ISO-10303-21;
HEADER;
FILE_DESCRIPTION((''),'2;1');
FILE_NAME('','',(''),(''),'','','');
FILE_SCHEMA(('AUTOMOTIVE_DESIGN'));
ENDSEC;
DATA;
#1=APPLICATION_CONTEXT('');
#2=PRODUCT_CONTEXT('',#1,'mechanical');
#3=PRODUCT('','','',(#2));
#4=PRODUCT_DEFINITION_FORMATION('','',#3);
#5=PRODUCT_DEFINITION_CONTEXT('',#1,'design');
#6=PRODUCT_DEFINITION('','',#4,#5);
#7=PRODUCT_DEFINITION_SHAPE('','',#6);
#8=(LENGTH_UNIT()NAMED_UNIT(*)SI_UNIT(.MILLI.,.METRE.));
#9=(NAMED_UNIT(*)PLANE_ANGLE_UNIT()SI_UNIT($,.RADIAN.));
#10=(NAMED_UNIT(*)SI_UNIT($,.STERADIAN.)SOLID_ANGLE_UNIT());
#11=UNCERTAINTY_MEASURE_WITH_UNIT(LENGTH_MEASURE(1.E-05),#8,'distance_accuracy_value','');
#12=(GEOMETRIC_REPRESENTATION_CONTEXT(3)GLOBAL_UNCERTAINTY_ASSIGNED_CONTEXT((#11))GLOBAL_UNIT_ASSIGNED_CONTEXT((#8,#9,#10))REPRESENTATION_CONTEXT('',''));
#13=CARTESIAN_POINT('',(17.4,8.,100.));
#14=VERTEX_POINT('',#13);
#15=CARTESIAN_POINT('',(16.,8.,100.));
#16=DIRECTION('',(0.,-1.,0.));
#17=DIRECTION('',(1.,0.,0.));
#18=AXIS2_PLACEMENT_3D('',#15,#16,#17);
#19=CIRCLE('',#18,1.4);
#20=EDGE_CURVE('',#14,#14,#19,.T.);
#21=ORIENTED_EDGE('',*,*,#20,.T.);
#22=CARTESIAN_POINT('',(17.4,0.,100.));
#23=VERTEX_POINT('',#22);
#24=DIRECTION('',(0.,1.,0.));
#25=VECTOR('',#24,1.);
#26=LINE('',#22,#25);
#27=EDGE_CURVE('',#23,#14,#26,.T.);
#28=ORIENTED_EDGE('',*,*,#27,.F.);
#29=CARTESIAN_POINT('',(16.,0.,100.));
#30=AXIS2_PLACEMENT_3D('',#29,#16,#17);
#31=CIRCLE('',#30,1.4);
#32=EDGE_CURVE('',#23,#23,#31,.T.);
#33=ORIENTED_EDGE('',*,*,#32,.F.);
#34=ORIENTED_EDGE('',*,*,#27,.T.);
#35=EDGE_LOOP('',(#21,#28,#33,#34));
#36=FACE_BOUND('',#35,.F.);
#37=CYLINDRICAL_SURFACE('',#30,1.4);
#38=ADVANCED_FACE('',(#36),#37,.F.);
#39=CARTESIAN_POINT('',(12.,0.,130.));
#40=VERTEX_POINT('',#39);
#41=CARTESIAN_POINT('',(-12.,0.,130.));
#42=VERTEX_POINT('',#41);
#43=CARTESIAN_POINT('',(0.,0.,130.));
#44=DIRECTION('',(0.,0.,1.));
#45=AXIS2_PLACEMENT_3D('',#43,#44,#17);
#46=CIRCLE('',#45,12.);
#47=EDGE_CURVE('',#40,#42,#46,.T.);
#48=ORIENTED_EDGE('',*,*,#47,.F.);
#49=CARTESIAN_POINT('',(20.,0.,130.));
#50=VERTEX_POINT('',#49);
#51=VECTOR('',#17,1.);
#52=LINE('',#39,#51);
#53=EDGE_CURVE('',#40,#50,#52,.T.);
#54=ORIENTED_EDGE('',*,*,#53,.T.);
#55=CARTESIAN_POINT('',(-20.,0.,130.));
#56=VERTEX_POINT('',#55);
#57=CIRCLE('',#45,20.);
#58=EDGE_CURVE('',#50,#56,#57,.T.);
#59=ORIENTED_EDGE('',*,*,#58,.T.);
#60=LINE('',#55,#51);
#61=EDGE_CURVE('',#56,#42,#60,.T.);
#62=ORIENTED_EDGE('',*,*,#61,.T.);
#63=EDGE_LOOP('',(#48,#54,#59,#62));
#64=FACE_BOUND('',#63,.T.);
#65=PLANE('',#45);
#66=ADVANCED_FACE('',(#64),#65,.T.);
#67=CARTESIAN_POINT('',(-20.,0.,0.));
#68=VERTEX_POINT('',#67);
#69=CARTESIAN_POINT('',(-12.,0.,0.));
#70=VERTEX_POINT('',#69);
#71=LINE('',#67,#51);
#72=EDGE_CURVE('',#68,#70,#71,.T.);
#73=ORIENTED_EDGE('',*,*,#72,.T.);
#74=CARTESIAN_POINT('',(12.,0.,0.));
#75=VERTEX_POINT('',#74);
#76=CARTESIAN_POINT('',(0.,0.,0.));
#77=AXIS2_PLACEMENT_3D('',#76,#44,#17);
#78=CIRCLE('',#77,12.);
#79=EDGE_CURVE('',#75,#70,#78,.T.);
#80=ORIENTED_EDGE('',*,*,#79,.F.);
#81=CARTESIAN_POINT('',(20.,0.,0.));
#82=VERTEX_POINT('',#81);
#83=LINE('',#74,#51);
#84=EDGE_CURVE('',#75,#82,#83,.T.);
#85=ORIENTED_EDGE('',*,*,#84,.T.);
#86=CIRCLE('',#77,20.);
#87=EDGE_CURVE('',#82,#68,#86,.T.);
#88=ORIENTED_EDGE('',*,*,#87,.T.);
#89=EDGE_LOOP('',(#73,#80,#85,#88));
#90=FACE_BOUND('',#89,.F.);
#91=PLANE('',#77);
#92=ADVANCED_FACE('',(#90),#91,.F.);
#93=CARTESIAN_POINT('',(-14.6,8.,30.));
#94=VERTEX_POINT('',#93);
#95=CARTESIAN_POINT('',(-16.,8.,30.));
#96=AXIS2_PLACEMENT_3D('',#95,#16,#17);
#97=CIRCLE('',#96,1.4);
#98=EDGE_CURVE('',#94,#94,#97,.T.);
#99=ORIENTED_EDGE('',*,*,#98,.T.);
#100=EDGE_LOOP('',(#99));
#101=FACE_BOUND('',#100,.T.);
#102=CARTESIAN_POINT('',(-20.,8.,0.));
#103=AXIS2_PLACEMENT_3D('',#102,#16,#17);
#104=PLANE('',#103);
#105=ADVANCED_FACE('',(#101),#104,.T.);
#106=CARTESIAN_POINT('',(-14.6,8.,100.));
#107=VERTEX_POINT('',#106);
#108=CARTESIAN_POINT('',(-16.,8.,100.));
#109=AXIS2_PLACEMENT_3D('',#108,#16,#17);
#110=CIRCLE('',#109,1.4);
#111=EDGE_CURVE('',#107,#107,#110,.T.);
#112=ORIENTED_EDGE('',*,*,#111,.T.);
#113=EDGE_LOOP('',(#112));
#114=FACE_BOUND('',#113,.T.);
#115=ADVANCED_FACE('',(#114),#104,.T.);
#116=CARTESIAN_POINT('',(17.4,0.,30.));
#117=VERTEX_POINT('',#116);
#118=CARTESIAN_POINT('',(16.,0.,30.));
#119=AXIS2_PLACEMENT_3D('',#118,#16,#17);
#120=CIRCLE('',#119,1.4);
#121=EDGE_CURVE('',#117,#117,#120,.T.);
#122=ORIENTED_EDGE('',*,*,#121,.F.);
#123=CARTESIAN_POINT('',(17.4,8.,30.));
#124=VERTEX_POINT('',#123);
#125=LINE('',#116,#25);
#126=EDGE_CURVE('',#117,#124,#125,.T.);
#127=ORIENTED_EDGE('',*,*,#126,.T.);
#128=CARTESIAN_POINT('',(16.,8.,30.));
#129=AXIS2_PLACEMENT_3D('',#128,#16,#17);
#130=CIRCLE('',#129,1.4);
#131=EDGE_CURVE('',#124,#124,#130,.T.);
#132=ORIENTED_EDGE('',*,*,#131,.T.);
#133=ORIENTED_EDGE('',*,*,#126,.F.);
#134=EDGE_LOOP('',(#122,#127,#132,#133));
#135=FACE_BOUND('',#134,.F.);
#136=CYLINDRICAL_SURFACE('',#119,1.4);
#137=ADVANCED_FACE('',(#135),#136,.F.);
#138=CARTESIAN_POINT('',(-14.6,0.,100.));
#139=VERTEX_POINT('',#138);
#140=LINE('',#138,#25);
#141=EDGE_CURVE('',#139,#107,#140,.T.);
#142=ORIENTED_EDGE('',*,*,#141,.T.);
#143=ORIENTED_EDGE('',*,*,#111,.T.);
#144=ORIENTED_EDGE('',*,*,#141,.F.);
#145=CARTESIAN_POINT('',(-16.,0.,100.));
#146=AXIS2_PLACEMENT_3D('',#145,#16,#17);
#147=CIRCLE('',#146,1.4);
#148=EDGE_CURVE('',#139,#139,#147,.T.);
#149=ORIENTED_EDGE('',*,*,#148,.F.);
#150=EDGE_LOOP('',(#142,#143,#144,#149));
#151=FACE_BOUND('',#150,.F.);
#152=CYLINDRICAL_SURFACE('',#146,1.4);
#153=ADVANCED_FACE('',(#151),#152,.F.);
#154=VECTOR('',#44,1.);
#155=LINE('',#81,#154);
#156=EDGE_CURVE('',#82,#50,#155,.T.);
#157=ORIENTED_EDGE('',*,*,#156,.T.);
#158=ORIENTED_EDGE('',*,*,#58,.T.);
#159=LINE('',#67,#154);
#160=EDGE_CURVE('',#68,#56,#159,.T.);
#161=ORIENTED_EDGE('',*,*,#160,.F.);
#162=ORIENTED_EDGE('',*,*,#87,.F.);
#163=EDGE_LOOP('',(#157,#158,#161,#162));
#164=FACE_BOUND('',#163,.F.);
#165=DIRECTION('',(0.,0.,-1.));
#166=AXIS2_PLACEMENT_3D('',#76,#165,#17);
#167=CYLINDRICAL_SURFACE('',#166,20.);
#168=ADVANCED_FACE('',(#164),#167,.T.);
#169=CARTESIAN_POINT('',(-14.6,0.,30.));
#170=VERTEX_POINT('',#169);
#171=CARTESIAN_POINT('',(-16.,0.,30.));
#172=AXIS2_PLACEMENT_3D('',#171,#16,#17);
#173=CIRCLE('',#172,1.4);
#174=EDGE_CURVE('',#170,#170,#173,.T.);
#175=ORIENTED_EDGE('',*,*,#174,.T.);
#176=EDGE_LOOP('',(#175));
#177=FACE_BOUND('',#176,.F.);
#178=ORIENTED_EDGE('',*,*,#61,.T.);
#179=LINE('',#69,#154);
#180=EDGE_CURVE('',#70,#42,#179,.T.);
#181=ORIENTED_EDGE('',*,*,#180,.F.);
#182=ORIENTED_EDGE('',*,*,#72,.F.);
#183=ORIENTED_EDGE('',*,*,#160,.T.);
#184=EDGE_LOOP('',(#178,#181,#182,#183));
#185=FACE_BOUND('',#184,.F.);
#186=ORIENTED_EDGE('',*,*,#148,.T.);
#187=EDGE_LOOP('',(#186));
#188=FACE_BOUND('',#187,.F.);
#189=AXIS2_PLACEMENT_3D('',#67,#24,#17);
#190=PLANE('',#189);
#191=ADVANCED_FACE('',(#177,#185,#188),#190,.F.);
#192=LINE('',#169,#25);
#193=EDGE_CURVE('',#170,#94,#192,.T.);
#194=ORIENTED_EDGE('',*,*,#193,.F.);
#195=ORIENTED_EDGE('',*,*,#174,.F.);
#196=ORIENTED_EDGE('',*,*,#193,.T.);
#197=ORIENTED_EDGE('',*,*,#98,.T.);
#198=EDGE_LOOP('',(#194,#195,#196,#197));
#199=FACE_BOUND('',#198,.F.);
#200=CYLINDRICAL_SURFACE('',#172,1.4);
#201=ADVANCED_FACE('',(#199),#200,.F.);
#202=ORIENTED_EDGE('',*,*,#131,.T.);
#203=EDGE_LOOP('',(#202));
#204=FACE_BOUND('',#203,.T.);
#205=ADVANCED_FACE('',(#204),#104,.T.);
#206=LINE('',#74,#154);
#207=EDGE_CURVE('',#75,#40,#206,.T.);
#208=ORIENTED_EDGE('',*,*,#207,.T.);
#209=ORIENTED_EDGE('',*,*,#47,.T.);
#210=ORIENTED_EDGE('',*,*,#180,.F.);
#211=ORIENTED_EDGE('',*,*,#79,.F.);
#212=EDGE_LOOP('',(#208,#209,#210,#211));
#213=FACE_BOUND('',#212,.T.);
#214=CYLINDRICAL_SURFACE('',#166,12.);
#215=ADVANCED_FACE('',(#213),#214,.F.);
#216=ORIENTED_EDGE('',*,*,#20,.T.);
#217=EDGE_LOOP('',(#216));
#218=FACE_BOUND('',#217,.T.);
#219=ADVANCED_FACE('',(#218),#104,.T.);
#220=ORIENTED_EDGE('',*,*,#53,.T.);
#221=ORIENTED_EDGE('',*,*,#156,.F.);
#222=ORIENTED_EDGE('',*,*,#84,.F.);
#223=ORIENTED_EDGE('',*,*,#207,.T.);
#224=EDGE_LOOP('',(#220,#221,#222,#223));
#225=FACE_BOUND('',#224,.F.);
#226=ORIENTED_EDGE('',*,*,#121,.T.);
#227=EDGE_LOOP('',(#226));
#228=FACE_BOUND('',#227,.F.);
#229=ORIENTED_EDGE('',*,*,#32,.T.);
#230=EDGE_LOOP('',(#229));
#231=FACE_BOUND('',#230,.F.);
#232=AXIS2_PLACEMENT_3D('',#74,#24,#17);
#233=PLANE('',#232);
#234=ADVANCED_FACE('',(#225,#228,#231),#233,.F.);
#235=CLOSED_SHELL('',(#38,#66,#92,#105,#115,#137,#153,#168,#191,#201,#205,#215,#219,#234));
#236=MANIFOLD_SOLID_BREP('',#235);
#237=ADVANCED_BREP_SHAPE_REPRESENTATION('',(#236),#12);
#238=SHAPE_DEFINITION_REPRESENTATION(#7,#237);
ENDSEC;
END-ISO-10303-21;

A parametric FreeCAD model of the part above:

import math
import FreeCAD as App
import Part
import Sketcher

V = App.Vector
Q = App.Units.Quantity

doc = App.newDocument("Part")
body = doc.addObject("PartDesign::Body", "Body")

# Sketch on XY plane
sketch1 = body.newObject("Sketcher::SketchObject", "Sketch")
sketch1.AttachmentSupport = (doc.getObject("XY_Plane"), [""])
sketch1.MapMode = "FlatFace"
sketch1.addGeometry(Part.ArcOfCircle(Part.Circle(V(0, 0, 0), V(0, 0, 1), 12), math.radians(0), math.radians(180)), False)
sketch1.addGeometry(Part.LineSegment(V(12, 0, 0), V(20, 0, 0)), False)
sketch1.addGeometry(Part.ArcOfCircle(Part.Circle(V(0, 0, 0), V(0, 0, 1), 20), math.radians(0), math.radians(180)), False)
sketch1.addGeometry(Part.LineSegment(V(-20, 0, 0), V(-12, 0, 0)), False)
sketch1.addConstraint(Sketcher.Constraint("Coincident", 0, 1, 1, 1))
sketch1.addConstraint(Sketcher.Constraint("Coincident", 1, 2, 2, 1))
sketch1.addConstraint(Sketcher.Constraint("Coincident", 2, 2, 3, 1))
sketch1.addConstraint(Sketcher.Constraint("Coincident", 3, 2, 0, 2))
sketch1.addConstraint(Sketcher.Constraint("Horizontal", 1))
sketch1.addConstraint(Sketcher.Constraint("Horizontal", 3))
sketch1.addConstraint(Sketcher.Constraint("Coincident", 0, 3, -1, 1))
sketch1.addConstraint(Sketcher.Constraint("Coincident", 2, 3, -1, 1))
sketch1.addConstraint(Sketcher.Constraint("PointOnObject", 0, 1, -1))
sketch1.addConstraint(Sketcher.Constraint("PointOnObject", 2, 2, -1))
sketch1.addConstraint(Sketcher.Constraint("Radius", 0, Q("12 mm")))
sketch1.addConstraint(Sketcher.Constraint("Radius", 2, Q("20 mm")))
pad1 = body.newObject("PartDesign::Pad", "Pad")
pad1.Profile = sketch1
pad1.Length = 130

# Sketch on XZ plane
sketch2 = body.newObject("Sketcher::SketchObject", "Sketch001")
sketch2.AttachmentSupport = (doc.getObject("XZ_Plane"), [""])
sketch2.MapMode = "FlatFace"
sketch2.addGeometry(Part.Circle(V(-16, 30, 0), V(0, 0, 1), 1.4), False)
sketch2.addGeometry(Part.Circle(V(-16, 100, 0), V(0, 0, 1), 1.4), False)
sketch2.addGeometry(Part.Circle(V(16, 100, 0), V(0, 0, 1), 1.4), False)
sketch2.addGeometry(Part.Circle(V(16, 30, 0), V(0, 0, 1), 1.4), False)
sketch2.addConstraint(Sketcher.Constraint("Equal", 0, 1))
sketch2.addConstraint(Sketcher.Constraint("Equal", 1, 2))
sketch2.addConstraint(Sketcher.Constraint("Equal", 2, 3))
sketch2.addConstraint(Sketcher.Constraint("Symmetric", 1, 3, 2, 3, -2))
sketch2.addConstraint(Sketcher.Constraint("Symmetric", 0, 3, 3, 3, -2))
sketch2.addConstraint(Sketcher.Constraint("Vertical", 0, 3, 1, 3))
sketch2.addConstraint(Sketcher.Constraint("Diameter", 0, Q("2.8 mm")))
sketch2.addConstraint(Sketcher.Constraint("DistanceX", 0, 3, -1, 1, Q("16 mm")))
sketch2.addConstraint(Sketcher.Constraint("DistanceY", -1, 1, 0, 3, Q("30 mm")))
sketch2.addConstraint(Sketcher.Constraint("DistanceY", -1, 1, 1, 3, Q("100 mm")))
pocket1 = body.newObject("PartDesign::Pocket", "Pocket")
pocket1.Profile = sketch2
pocket1.Length = 8

doc.recompute()
